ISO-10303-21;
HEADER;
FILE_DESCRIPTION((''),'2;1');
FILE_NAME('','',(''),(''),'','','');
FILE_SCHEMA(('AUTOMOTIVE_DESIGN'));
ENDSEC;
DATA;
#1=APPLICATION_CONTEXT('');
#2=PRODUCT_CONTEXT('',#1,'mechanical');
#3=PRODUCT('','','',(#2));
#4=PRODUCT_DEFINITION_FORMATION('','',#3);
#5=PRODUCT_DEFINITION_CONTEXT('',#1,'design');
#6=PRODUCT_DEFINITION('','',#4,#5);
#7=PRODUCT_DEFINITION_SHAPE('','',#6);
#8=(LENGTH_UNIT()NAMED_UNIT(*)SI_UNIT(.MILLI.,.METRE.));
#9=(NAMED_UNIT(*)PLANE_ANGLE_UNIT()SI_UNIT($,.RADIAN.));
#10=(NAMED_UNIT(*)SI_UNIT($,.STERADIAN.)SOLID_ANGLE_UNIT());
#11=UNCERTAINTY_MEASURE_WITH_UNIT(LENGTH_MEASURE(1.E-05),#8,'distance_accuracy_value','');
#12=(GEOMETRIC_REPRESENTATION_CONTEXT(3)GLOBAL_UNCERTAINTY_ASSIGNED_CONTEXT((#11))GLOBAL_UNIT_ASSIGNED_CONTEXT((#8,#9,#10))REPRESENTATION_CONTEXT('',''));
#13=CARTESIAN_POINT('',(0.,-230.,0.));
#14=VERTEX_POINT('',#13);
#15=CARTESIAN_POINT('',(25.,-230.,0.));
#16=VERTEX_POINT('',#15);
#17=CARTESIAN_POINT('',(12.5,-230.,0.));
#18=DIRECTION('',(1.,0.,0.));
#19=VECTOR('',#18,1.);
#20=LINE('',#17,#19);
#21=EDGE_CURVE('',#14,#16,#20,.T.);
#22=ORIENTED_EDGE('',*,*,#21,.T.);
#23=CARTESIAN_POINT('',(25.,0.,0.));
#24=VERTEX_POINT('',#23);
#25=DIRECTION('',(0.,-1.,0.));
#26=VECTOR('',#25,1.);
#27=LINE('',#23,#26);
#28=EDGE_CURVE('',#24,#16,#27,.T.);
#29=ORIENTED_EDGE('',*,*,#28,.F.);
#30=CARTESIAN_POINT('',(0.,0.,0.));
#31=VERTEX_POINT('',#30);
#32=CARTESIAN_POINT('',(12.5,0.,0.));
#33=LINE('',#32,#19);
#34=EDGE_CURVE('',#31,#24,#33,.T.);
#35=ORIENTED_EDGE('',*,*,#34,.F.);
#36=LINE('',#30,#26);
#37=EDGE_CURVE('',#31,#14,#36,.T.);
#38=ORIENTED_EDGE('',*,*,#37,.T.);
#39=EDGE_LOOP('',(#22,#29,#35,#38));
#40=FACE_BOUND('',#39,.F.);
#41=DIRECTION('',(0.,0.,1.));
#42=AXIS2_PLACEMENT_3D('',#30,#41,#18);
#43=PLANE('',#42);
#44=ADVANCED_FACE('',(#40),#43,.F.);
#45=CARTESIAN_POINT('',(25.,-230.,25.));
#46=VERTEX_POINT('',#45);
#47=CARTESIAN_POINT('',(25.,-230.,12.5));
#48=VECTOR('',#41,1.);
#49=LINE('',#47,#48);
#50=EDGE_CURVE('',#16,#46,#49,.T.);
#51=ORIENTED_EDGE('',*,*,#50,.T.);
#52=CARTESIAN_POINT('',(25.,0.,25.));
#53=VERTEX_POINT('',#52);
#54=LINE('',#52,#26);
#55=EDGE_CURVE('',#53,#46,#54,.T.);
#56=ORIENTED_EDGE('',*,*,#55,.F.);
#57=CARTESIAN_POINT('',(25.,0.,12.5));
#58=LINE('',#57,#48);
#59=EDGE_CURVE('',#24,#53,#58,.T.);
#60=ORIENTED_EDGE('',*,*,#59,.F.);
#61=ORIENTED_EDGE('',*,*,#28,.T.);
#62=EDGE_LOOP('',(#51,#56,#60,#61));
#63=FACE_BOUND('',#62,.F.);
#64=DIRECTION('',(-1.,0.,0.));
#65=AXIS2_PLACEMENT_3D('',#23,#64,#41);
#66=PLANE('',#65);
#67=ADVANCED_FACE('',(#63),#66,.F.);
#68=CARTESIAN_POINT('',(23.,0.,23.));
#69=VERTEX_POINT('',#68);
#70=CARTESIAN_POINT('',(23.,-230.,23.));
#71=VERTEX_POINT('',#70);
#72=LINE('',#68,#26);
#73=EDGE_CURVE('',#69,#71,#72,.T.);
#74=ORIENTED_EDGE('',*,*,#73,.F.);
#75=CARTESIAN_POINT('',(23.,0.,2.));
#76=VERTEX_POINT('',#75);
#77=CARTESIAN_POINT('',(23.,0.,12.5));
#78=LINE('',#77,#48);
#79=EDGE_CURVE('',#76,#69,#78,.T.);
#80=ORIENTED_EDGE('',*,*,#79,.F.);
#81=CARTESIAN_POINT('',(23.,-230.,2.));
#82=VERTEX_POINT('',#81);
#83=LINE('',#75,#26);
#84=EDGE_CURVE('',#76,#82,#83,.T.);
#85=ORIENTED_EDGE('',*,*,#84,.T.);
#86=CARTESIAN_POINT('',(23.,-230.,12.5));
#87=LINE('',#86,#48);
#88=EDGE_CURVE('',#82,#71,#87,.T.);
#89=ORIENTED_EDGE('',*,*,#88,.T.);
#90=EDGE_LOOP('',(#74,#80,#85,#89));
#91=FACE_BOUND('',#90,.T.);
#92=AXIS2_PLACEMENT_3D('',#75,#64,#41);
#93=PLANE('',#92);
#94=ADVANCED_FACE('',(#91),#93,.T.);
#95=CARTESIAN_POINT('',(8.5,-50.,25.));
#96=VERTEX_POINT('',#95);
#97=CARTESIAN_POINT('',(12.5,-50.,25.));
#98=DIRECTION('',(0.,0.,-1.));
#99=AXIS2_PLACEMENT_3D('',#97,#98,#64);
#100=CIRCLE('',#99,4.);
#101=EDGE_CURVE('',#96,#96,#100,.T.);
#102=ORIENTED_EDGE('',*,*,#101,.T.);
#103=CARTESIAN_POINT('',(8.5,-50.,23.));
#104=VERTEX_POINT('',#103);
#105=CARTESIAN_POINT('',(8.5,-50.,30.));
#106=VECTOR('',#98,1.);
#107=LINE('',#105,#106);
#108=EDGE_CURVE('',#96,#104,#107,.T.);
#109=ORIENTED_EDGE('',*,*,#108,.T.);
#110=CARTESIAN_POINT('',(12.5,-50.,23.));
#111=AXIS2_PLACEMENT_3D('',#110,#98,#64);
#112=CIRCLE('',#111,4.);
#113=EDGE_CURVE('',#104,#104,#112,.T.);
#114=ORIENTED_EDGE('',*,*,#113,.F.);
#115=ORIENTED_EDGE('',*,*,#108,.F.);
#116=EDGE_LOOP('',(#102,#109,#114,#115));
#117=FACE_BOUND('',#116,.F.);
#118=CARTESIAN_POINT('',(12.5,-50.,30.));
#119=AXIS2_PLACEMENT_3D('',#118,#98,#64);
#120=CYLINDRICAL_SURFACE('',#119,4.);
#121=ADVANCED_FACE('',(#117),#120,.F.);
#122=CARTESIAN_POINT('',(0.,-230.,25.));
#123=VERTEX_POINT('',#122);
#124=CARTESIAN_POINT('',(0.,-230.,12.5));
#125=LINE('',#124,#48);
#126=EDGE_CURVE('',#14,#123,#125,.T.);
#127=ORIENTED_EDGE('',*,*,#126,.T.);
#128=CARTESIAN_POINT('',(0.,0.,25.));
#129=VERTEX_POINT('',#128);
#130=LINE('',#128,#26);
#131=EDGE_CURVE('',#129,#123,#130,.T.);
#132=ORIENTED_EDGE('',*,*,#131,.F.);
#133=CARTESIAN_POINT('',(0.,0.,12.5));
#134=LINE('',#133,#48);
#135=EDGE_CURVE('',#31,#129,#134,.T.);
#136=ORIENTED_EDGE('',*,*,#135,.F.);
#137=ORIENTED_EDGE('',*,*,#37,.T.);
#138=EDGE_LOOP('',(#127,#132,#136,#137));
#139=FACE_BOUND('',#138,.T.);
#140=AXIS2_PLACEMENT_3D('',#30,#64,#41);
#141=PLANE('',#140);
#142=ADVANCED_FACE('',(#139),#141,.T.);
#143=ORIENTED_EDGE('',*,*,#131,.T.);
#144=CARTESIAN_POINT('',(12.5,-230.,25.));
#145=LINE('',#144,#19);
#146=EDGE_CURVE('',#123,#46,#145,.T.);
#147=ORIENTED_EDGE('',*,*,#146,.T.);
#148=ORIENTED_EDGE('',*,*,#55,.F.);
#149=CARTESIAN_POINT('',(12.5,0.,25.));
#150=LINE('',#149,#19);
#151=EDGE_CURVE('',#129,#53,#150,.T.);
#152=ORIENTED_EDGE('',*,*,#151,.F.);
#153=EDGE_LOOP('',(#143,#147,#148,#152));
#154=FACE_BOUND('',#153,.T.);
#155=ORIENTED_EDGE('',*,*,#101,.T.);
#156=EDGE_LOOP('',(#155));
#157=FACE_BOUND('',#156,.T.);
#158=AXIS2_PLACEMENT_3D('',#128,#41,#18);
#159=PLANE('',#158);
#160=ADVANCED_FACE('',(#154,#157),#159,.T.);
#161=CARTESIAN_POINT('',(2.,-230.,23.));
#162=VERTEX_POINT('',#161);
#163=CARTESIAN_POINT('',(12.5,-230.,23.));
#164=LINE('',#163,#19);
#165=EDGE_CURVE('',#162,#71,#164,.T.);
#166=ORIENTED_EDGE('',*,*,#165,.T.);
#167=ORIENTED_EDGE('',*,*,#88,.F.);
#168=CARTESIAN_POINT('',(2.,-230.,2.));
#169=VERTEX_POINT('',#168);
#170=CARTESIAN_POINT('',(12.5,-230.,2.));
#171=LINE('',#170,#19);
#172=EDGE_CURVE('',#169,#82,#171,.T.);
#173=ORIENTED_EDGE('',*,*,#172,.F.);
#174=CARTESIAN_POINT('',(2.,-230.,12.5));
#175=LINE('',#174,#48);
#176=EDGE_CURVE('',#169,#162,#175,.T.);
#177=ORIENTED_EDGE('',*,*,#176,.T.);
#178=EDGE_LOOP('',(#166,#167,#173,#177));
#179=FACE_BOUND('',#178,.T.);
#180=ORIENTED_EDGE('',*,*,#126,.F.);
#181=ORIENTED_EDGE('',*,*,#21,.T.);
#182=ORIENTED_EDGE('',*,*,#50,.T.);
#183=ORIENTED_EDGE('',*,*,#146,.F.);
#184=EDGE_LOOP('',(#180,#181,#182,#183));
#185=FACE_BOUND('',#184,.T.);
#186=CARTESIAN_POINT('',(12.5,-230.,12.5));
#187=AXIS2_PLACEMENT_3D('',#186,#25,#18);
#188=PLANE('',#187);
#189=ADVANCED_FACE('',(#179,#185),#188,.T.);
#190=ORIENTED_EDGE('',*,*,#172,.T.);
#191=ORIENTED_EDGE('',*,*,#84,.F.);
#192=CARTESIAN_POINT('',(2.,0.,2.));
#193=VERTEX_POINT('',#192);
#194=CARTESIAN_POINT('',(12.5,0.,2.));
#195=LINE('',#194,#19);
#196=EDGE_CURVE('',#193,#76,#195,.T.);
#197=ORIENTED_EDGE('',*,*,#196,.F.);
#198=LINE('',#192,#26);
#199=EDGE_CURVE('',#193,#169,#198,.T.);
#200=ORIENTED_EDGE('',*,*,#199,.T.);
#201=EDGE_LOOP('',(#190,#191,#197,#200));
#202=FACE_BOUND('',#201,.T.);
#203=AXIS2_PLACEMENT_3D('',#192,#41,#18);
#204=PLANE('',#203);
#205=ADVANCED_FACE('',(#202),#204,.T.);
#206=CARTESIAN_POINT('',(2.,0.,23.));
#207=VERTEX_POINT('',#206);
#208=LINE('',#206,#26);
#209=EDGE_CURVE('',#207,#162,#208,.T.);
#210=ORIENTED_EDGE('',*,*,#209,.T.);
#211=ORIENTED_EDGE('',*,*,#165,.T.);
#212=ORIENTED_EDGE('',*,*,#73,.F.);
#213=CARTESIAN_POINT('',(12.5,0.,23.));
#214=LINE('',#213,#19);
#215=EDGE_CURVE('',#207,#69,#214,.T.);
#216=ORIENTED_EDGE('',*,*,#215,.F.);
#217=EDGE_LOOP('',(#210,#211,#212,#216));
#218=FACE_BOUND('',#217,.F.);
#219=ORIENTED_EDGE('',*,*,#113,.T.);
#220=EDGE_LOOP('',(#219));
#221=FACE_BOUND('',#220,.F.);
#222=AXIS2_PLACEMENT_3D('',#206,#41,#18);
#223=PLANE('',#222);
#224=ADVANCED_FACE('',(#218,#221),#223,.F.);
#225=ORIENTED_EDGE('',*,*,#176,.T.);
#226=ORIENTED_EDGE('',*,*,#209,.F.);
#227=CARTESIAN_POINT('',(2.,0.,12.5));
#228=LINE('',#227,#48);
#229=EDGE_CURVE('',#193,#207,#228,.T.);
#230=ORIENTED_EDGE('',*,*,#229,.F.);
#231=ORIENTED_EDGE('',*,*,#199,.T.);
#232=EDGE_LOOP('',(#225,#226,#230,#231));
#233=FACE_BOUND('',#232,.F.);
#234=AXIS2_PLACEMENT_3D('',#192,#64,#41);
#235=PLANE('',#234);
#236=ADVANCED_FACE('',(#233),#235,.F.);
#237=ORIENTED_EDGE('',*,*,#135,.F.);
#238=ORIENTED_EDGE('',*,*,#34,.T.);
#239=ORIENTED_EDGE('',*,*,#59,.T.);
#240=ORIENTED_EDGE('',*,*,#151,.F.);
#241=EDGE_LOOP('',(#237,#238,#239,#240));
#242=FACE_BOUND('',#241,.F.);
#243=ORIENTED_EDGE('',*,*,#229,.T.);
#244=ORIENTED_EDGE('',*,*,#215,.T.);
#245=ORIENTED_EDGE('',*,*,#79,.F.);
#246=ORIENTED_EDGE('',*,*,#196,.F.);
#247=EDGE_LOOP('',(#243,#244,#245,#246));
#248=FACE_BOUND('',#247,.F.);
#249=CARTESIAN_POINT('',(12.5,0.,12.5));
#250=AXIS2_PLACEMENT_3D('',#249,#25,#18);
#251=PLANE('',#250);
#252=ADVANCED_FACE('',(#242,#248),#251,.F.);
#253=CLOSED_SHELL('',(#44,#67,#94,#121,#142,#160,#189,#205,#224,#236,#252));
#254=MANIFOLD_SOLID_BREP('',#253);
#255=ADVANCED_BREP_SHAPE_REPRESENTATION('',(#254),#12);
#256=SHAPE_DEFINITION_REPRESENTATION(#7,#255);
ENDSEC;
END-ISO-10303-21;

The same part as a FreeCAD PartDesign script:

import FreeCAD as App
import Part
import Sketcher


def add_polygon(sketch, points):
    """Adds a closed chain of lines whose ends are joined by coincident constraints."""
    first, n = sketch.GeometryCount, len(points)
    for a, b in zip(points, points[1:] + points[:1]):
        sketch.addGeometry(Part.LineSegment(App.Vector(*a, 0), App.Vector(*b, 0)), False)
    for i in range(n):
        sketch.addConstraint(Sketcher.Constraint("Coincident", first + i, 2, first + (i + 1) % n, 1))

doc = App.newDocument("Part")
body = doc.addObject("PartDesign::Body", "Body")

# Sketch on XZ plane
sketch1 = body.newObject("Sketcher::SketchObject", "Sketch")
sketch1.AttachmentSupport = (doc.getObject("XZ_Plane"), [""])
sketch1.MapMode = "FlatFace"
add_polygon(sketch1, [(0, 25), (0, 0), (25, 0), (25, 25)])  # lines 0-3
add_polygon(sketch1, [(23, 2), (2, 2), (2, 23), (23, 23)])  # lines 4-7
sketch1.addConstraint(Sketcher.Constraint("Vertical", 0))
sketch1.addConstraint(Sketcher.Constraint("Horizontal", 1))
sketch1.addConstraint(Sketcher.Constraint("Vertical", 2))
sketch1.addConstraint(Sketcher.Constraint("Horizontal", 3))
sketch1.addConstraint(Sketcher.Constraint("Horizontal", 4))
sketch1.addConstraint(Sketcher.Constraint("Vertical", 5))
sketch1.addConstraint(Sketcher.Constraint("Horizontal", 6))
sketch1.addConstraint(Sketcher.Constraint("Vertical", 7))
sketch1.addConstraint(Sketcher.Constraint("Coincident", 0, 2, -1, 1))
sketch1.addConstraint(Sketcher.Constraint("Equal", 3, 0))
sketch1.addConstraint(Sketcher.Constraint("Equal", 6, 5))
sketch1.addConstraint(Sketcher.Constraint("DistanceX", 1, 1, 1, 2, 25.0))
sketch1.addConstraint(Sketcher.Constraint("DistanceX", 4, 2, 4, 1, 21.0))
sketch1.addConstraint(Sketcher.Constraint("DistanceX", -1, 1, 4, 2, 2.0))
sketch1.addConstraint(Sketcher.Constraint("DistanceY", -1, 1, 4, 2, 2.0))
pad1 = body.newObject("PartDesign::Pad", "Pad")
pad1.Profile = sketch1
pad1.Length = 230

# Sketch on XY plane
sketch2 = body.newObject("Sketcher::SketchObject", "Sketch001")
sketch2.AttachmentSupport = (doc.getObject("XY_Plane"), [""])
sketch2.MapMode = "FlatFace"
sketch2.AttachmentOffset = App.Placement(App.Vector(0, 0, 25), App.Rotation())
sketch2.addGeometry(Part.Circle(App.Vector(12.5, -50, 0), App.Vector(0, 0, 1), 4), False)
sketch2.addConstraint(Sketcher.Constraint("Diameter", 0, 8.0))
sketch2.addConstraint(Sketcher.Constraint("DistanceY", 0, 3, -1, 1, 50.0))
sketch2.addConstraint(Sketcher.Constraint("DistanceX", -1, 1, 0, 3, 12.5))
doc.recompute()
hole = body.newObject("PartDesign::Hole", "Hole")
hole.Profile = sketch2
hole.ThreadType = "None"
hole.Diameter = 8
hole.DepthType = "Dimension"
hole.Depth = 5
hole.DrillPoint = "Flat"

doc.recompute()
